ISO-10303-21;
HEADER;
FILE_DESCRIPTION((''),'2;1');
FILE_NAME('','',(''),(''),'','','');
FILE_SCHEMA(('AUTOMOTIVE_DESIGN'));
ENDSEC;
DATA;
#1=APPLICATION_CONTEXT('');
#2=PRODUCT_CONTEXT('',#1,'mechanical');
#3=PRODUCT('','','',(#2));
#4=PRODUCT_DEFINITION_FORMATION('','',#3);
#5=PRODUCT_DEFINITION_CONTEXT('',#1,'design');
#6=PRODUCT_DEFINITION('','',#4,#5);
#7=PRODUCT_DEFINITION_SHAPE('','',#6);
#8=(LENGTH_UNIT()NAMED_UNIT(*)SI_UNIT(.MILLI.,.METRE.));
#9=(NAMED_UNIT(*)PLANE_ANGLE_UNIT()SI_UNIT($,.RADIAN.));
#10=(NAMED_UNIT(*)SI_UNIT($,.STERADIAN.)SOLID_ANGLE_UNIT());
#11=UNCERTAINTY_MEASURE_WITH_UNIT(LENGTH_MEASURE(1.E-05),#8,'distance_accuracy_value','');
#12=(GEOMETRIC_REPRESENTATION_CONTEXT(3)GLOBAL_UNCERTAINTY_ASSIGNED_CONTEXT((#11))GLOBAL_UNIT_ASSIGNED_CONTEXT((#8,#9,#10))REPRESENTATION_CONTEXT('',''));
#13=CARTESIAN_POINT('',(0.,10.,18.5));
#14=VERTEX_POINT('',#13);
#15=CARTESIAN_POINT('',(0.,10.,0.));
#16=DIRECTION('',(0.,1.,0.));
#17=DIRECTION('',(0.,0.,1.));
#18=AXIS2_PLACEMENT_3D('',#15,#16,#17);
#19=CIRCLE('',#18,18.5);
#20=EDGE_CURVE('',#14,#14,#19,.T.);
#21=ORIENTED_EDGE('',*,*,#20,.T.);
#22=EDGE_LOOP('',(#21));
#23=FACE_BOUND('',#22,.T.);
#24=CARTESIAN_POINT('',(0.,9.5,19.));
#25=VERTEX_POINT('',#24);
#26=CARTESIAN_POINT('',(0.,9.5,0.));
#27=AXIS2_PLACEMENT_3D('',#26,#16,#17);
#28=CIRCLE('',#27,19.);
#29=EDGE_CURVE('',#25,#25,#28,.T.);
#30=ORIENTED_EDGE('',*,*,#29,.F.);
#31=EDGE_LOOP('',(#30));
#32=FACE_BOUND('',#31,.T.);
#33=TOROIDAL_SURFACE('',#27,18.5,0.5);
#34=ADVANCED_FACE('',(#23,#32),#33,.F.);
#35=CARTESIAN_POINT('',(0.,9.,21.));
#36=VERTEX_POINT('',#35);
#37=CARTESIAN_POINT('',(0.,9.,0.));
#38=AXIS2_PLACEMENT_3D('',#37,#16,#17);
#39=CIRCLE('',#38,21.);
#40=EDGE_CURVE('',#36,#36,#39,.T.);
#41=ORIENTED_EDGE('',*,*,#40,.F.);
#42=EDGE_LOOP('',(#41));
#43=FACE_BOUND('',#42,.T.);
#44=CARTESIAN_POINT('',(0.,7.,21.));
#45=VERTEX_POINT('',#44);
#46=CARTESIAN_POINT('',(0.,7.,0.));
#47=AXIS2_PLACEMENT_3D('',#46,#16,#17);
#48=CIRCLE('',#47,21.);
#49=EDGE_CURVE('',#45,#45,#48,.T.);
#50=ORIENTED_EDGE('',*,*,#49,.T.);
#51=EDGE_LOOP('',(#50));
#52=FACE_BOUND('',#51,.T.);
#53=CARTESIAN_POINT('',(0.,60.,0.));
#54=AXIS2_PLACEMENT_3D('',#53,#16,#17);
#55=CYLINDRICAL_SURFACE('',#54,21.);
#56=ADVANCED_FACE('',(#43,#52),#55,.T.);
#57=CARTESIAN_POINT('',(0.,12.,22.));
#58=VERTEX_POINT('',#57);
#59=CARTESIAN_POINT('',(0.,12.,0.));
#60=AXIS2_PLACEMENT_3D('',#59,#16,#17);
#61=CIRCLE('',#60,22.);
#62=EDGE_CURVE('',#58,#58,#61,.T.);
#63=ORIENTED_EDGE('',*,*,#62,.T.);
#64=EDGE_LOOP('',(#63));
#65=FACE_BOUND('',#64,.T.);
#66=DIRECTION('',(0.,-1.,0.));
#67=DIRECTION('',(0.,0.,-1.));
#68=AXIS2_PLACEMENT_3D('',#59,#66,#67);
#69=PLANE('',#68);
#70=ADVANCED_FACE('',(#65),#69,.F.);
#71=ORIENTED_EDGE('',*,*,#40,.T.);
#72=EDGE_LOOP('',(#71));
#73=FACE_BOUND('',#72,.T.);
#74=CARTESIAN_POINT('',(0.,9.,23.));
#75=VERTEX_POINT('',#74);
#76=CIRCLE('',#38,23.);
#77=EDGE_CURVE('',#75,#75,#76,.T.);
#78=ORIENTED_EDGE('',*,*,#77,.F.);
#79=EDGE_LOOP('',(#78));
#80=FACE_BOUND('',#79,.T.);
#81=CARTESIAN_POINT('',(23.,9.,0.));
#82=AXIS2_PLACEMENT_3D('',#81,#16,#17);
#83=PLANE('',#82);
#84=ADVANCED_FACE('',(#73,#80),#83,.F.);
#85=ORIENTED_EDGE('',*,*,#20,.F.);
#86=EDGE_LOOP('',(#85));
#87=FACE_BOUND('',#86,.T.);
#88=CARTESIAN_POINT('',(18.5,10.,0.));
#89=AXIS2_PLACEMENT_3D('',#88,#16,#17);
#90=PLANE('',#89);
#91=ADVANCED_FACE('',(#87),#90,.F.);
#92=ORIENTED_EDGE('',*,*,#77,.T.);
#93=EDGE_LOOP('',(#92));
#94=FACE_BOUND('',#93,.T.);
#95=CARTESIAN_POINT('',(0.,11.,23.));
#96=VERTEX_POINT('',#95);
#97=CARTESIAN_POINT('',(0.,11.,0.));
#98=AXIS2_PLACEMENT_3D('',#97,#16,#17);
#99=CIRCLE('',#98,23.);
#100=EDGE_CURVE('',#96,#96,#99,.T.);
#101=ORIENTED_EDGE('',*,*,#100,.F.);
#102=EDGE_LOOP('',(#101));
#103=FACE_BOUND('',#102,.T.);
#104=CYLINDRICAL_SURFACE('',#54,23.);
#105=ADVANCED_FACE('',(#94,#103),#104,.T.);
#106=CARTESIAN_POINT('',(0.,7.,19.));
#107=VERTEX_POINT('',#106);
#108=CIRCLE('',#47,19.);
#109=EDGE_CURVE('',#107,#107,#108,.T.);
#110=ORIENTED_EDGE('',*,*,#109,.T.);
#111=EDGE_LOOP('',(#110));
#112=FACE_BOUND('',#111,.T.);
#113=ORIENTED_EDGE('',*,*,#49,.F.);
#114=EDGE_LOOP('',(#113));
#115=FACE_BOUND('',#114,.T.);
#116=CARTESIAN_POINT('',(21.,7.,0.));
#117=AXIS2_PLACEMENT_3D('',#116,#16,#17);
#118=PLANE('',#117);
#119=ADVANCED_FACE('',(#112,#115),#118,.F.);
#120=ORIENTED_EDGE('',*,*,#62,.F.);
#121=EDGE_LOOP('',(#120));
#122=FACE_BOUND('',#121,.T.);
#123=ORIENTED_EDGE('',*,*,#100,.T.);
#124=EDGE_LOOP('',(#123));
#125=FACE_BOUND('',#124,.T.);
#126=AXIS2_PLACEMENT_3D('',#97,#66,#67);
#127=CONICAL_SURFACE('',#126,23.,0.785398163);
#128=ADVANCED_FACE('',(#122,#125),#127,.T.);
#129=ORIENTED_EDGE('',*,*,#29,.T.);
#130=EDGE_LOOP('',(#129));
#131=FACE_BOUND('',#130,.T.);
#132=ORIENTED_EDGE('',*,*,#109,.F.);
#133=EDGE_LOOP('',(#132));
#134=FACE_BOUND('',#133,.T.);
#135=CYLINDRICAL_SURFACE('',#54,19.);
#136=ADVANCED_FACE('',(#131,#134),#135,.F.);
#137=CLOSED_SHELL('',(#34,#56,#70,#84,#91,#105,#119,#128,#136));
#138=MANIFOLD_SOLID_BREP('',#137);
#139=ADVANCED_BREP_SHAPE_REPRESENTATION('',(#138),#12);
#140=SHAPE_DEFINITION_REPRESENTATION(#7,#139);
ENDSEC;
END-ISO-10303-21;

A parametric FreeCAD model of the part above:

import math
import FreeCAD as App
import Part
import Sketcher

V = App.Vector
Q = App.Units.Quantity

doc = App.newDocument("Part")
body = doc.addObject("PartDesign::Body", "Body")

sketch1 = doc.addObject("Sketcher::SketchObject", "Sketch")
body.addObject(sketch1)
sketch1.AttachmentSupport = (doc.XY_Plane, [""])
sketch1.MapMode = "FlatFace"
sketch1.addGeometry([
    Part.LineSegment(V(22, 12, 0), V(0, 12, 0)),
    Part.LineSegment(V(0, 12, 0), V(0, 10, 0)),
    Part.LineSegment(V(0, 10, 0), V(18.5, 10, 0)),
    Part.ArcOfCircle(Part.Circle(V(18.5, 9.5, 0), V(0, 0, 1), 0.5), math.radians(0), math.radians(90)),
    Part.LineSegment(V(19, 9.5, 0), V(19, 7, 0)),
    Part.LineSegment(V(19, 7, 0), V(21, 7, 0)),
    Part.LineSegment(V(21, 7, 0), V(21, 9, 0)),
    Part.LineSegment(V(21, 9, 0), V(23, 9, 0)),
    Part.LineSegment(V(23, 9, 0), V(23, 11, 0)),
    Part.LineSegment(V(23, 11, 0), V(22, 12, 0)),
], False)
sketch1.addConstraint([
    Sketcher.Constraint("Coincident", 0, 2, 1, 1),
    Sketcher.Constraint("Coincident", 1, 2, 2, 1),
    Sketcher.Constraint("Tangent", 2, 2, 3, 2),
    Sketcher.Constraint("Tangent", 3, 1, 4, 1),
    Sketcher.Constraint("Coincident", 4, 2, 5, 1),
    Sketcher.Constraint("Coincident", 5, 2, 6, 1),
    Sketcher.Constraint("Coincident", 6, 2, 7, 1),
    Sketcher.Constraint("Coincident", 7, 2, 8, 1),
    Sketcher.Constraint("Coincident", 8, 2, 9, 1),
    Sketcher.Constraint("Coincident", 9, 2, 0, 1),
    Sketcher.Constraint("Horizontal", 0),
    Sketcher.Constraint("Vertical", 1),
    Sketcher.Constraint("Horizontal", 2),
    Sketcher.Constraint("Vertical", 4),
    Sketcher.Constraint("Horizontal", 5),
    Sketcher.Constraint("Vertical", 6),
    Sketcher.Constraint("Horizontal", 7),
    Sketcher.Constraint("Vertical", 8),
    Sketcher.Constraint("PointOnObject", 0, 2, -2),
    Sketcher.Constraint("Equal", 5, 7),
    Sketcher.Constraint("Equal", 7, 1),
    Sketcher.Constraint("Equal", 1, 6),
    Sketcher.Constraint("Equal", 6, 8),
    Sketcher.Constraint("Radius", 3, Q("0.5 mm")),
    Sketcher.Constraint("DistanceX", 0, 2, 0, 1, Q("22 mm")),
    Sketcher.Constraint("DistanceX", 5, 1, 5, 2, Q("2 mm")),
    Sketcher.Constraint("Angle", 9, Q("135 deg")),
    Sketcher.Constraint("DistanceX", 2, 1, 2, 2, Q("18.5 mm")),
    Sketcher.Constraint("DistanceY", -1, 1, 0, 2, Q("12 mm")),
])
revolution = doc.addObject("PartDesign::Revolution", "Revolution")
body.addObject(revolution)
revolution.Profile = sketch1
revolution.ReferenceAxis = (sketch1, ["V_Axis"])
revolution.Angle = 360

doc.recompute()
